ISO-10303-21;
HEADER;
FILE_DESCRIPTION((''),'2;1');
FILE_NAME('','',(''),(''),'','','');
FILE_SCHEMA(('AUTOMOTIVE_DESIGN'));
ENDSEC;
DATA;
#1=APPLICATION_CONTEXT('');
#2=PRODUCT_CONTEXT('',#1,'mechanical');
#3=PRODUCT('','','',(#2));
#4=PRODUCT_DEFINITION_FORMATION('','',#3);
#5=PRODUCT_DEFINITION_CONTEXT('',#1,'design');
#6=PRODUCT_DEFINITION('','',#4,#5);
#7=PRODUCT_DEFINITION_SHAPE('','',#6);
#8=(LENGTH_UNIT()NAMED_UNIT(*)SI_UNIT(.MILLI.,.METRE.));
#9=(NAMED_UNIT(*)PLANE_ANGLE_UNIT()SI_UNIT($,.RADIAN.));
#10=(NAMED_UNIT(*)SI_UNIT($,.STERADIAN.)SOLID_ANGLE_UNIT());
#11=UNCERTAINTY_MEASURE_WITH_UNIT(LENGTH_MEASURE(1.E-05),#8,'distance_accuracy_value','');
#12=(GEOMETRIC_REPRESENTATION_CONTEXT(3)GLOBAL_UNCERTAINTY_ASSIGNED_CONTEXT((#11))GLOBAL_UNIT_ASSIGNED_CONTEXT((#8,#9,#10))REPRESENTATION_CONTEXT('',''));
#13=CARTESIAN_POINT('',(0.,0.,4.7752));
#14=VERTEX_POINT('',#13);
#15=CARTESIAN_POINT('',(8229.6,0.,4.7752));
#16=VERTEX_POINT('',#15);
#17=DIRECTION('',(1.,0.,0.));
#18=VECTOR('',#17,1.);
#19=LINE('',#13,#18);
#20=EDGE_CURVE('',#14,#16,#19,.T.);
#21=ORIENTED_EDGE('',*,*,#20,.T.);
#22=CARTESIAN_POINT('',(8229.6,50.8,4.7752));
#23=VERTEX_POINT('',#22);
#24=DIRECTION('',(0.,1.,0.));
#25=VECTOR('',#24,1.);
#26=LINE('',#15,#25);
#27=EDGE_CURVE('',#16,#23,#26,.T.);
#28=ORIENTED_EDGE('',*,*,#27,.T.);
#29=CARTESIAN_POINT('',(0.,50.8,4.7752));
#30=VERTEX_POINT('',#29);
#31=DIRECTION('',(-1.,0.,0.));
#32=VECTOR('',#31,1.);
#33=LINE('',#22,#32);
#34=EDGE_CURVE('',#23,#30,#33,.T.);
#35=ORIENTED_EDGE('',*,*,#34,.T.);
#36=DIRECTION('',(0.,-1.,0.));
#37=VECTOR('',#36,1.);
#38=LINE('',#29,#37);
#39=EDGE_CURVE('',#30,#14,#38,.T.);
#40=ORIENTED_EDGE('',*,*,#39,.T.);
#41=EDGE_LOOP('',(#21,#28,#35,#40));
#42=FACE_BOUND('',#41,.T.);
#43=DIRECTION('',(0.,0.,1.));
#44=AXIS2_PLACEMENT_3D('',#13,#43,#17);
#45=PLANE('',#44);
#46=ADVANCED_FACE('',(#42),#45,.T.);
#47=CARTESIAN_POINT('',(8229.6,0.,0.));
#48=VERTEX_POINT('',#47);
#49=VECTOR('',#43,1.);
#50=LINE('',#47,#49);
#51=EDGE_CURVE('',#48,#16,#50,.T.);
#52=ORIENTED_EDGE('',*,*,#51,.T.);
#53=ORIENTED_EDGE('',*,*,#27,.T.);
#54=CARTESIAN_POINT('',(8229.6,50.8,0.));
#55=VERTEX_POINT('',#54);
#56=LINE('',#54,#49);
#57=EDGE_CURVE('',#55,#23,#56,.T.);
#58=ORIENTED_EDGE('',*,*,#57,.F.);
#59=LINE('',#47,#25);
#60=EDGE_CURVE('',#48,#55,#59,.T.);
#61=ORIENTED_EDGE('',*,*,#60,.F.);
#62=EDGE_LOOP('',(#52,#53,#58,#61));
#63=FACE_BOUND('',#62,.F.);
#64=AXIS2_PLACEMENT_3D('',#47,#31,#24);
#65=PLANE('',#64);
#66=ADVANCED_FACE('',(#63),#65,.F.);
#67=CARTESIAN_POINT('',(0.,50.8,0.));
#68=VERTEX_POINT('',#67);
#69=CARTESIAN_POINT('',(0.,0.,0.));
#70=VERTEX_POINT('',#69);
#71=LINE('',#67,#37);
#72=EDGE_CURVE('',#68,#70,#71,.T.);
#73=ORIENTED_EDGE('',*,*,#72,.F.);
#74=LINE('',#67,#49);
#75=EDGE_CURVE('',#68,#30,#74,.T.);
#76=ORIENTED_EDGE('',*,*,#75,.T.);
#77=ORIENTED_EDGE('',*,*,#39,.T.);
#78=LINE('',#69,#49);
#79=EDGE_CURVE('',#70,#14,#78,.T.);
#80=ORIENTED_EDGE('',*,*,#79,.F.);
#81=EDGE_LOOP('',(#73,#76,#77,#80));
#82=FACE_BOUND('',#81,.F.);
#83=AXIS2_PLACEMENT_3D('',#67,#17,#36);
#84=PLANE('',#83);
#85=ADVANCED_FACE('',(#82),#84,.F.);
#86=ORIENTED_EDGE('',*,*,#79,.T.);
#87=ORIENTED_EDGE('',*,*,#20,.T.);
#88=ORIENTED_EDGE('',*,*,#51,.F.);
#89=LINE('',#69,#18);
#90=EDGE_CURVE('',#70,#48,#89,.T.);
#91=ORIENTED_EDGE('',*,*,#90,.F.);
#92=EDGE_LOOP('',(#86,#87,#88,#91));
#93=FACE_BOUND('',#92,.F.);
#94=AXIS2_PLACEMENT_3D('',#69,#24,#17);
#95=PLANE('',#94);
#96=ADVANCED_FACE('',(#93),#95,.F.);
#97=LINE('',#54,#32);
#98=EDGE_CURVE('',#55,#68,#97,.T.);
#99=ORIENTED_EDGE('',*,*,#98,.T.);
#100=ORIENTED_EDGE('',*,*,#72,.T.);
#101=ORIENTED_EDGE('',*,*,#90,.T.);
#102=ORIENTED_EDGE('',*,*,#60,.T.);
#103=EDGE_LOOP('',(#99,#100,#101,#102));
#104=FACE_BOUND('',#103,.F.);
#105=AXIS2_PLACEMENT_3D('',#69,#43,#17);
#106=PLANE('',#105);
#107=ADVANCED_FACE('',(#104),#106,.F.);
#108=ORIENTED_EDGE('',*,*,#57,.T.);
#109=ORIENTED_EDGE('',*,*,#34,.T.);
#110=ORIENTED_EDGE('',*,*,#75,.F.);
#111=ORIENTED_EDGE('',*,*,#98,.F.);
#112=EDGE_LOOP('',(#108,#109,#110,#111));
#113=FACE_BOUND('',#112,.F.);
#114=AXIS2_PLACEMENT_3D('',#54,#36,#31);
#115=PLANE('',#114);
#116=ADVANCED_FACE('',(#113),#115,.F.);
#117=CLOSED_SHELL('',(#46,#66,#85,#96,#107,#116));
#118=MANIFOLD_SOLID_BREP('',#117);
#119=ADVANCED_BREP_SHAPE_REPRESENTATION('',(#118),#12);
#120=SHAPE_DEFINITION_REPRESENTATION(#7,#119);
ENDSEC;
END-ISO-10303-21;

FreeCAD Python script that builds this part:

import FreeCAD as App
import Part
import Sketcher
from FreeCAD import Vector
Q = App.Units.Quantity

doc = App.newDocument("Part")
body = doc.addObject("PartDesign::Body", "Body")

# Sketch on XY plane
sketch1 = body.newObject("Sketcher::SketchObject", "Sketch")
sketch1.AttachmentSupport = (doc.getObject("XY_Plane"), [""])
sketch1.MapMode = "FlatFace"
sketch1.addGeometry(Part.LineSegment(Vector(0, 51, 0), Vector(0, 0, 0)), False)
sketch1.addGeometry(Part.LineSegment(Vector(0, 0, 0), Vector(8230, 0, 0)), False)
sketch1.addGeometry(Part.LineSegment(Vector(8230, 0, 0), Vector(8230, 51, 0)), False)
sketch1.addGeometry(Part.LineSegment(Vector(8230, 51, 0), Vector(0, 51, 0)), False)
sketch1.addConstraint(Sketcher.Constraint("Coincident", 0, 2, 1, 1))
sketch1.addConstraint(Sketcher.Constraint("Coincident", 1, 2, 2, 1))
sketch1.addConstraint(Sketcher.Constraint("Coincident", 2, 2, 3, 1))
sketch1.addConstraint(Sketcher.Constraint("Coincident", 3, 2, 0, 1))
sketch1.addConstraint(Sketcher.Constraint("Vertical", 0))
sketch1.addConstraint(Sketcher.Constraint("Horizontal", 1))
sketch1.addConstraint(Sketcher.Constraint("Vertical", 2))
sketch1.addConstraint(Sketcher.Constraint("Horizontal", 3))
sketch1.addConstraint(Sketcher.Constraint("Coincident", 0, 2, -1, 1))
sketch1.addConstraint(Sketcher.Constraint("DistanceX", 1, 1, 1, 2, Q("324 in")))
sketch1.addConstraint(Sketcher.Constraint("DistanceY", 0, 2, 0, 1, Q("2 in")))
pad1 = body.newObject("PartDesign::Pad", "Pad")
pad1.Profile = sketch1
pad1.Length = Q("0.188 in")

doc.recompute()
